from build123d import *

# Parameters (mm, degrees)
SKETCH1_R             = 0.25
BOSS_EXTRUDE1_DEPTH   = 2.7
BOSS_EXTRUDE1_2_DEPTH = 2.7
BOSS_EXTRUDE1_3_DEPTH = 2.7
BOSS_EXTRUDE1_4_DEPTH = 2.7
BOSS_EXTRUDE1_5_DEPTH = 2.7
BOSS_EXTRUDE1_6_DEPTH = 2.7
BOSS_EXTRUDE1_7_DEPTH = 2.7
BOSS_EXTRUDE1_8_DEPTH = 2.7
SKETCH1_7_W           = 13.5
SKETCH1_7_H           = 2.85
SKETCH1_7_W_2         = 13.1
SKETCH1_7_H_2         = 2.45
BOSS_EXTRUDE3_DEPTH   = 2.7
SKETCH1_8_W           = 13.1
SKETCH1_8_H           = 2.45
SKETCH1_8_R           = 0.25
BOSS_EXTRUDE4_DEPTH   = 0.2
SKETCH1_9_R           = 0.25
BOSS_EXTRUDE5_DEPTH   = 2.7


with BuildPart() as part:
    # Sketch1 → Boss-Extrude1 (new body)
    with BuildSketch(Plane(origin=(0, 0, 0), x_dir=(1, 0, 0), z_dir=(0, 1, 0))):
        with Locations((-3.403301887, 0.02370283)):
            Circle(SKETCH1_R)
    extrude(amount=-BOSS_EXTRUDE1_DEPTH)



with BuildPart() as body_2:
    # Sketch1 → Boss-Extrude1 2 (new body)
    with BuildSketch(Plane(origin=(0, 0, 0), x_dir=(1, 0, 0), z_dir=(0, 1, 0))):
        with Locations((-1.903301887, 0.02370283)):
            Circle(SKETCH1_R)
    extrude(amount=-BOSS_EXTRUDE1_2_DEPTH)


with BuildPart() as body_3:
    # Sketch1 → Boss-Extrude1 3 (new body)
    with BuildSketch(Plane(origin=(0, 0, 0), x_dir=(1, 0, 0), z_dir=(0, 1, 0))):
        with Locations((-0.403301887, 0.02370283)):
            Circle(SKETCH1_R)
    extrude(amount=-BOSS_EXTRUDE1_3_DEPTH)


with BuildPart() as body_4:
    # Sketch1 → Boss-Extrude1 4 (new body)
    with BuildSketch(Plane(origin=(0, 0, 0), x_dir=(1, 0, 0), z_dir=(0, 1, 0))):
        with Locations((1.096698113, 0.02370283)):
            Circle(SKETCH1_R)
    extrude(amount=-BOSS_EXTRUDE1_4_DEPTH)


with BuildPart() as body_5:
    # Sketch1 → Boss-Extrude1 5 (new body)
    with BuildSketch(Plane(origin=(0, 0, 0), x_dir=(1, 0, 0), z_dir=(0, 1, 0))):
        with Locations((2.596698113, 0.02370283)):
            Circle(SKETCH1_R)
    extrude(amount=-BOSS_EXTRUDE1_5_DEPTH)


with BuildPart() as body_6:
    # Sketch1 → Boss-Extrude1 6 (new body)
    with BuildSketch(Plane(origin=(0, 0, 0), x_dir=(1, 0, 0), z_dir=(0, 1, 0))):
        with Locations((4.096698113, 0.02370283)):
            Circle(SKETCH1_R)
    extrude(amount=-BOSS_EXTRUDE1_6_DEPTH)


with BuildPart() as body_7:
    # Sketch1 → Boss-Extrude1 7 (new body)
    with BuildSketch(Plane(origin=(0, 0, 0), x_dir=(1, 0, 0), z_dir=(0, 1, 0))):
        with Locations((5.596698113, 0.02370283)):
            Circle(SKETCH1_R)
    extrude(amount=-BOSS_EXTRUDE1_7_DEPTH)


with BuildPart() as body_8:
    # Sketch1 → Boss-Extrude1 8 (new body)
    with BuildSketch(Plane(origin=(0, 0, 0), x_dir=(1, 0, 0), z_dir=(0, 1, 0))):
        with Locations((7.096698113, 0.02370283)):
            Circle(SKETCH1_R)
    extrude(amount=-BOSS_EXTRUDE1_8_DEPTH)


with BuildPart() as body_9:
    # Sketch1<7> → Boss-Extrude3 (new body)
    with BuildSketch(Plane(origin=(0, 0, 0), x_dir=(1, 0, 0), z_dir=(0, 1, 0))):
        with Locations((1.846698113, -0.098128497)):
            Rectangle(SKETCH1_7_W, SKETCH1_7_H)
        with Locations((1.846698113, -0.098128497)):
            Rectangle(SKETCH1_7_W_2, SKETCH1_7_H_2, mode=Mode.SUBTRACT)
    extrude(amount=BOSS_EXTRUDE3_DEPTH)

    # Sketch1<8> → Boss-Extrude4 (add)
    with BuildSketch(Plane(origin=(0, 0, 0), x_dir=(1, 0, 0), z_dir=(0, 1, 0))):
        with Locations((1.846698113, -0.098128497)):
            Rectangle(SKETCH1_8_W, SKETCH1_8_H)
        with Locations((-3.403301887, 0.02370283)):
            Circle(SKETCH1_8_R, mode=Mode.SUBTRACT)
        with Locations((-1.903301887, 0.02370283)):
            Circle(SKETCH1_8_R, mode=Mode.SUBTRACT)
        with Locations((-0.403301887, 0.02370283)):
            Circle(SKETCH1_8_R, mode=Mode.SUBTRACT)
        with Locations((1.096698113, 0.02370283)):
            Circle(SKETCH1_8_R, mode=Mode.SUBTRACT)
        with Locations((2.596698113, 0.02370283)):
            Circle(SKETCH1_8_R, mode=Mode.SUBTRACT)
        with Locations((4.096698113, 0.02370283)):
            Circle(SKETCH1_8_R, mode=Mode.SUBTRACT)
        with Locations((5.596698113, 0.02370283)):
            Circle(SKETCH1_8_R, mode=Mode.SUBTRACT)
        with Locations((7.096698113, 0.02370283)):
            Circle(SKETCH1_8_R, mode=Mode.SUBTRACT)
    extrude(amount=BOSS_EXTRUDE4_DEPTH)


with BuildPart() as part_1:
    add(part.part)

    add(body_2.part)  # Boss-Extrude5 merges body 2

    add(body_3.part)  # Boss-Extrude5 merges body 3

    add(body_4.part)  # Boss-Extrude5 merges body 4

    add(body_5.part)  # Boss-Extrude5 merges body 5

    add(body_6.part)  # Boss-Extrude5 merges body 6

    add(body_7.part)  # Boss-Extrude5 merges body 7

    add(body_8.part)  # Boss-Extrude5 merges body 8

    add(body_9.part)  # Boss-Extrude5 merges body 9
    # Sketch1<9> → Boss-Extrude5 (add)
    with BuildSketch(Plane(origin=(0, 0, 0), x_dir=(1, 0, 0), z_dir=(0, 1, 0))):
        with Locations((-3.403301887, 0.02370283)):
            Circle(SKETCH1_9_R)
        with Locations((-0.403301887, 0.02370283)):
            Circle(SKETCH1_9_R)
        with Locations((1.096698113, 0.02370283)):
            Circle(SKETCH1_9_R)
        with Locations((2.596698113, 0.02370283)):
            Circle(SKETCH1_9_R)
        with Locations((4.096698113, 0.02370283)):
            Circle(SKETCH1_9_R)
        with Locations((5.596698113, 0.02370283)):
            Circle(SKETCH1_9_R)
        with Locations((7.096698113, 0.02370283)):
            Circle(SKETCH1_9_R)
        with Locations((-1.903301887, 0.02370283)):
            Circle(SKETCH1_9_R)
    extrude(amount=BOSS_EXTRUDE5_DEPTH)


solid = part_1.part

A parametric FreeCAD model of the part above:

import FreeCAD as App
import Part
import Sketcher

V = App.Vector
Q = App.Units.Quantity


def add_polygon(sketch, points):
    """Adds a closed chain of lines whose ends are joined by coincident constraints."""
    first, n = sketch.GeometryCount, len(points)
    for a, b in zip(points, points[1:] + points[:1]):
        sketch.addGeometry(Part.LineSegment(App.Vector(*a, 0), App.Vector(*b, 0)), False)
    for i in range(n):
        sketch.addConstraint(Sketcher.Constraint("Coincident", first + i, 2, first + (i + 1) % n, 1))

doc = App.newDocument("Part")
body = doc.addObject("PartDesign::Body", "Body")

# Sketch on XZ plane
sketch1 = body.newObject("Sketcher::SketchObject", "Sketch")
sketch1.AttachmentSupport = (doc.getObject("XZ_Plane"), [""])
sketch1.MapMode = "FlatFace"
sketch1.addGeometry(Part.Circle(V(-3.403302, -0.023703, 0), V(0, 0, 1), 0.25), False)
sketch1.addConstraint([
    Sketcher.Constraint("Diameter", 0, Q("0.5 mm")),
    Sketcher.Constraint("DistanceX", 0, 3, -1, 1, Q("3.403302 mm")),
    Sketcher.Constraint("DistanceY", 0, 3, -1, 1, Q("0.023703 mm")),
])
pad1 = body.newObject("PartDesign::Pad", "Pad")
pad1.Profile = sketch1
pad1.Length = 2.7
body2 = doc.addObject("PartDesign::Body", "Body001")

# Sketch on XZ plane
sketch2 = body2.newObject("Sketcher::SketchObject", "Sketch001")
sketch2.AttachmentSupport = (doc.getObject("XZ_Plane001"), [""])
sketch2.MapMode = "FlatFace"
sketch2.addGeometry(Part.Circle(V(-1.903302, -0.023703, 0), V(0, 0, 1), 0.25), False)
sketch2.addConstraint([
    Sketcher.Constraint("Diameter", 0, Q("0.5 mm")),
    Sketcher.Constraint("DistanceX", 0, 3, -1, 1, Q("1.903302 mm")),
    Sketcher.Constraint("DistanceY", 0, 3, -1, 1, Q("0.023703 mm")),
])
pad2 = body2.newObject("PartDesign::Pad", "Pad001")
pad2.Profile = sketch2
pad2.Length = 2.7
body3 = doc.addObject("PartDesign::Body", "Body002")

# Sketch on XZ plane
sketch3 = body3.newObject("Sketcher::SketchObject", "Sketch002")
sketch3.AttachmentSupport = (doc.getObject("XZ_Plane002"), [""])
sketch3.MapMode = "FlatFace"
sketch3.addGeometry(Part.Circle(V(-0.403302, -0.023703, 0), V(0, 0, 1), 0.25), False)
sketch3.addConstraint([
    Sketcher.Constraint("Diameter", 0, Q("0.5 mm")),
    Sketcher.Constraint("DistanceX", 0, 3, -1, 1, Q("0.403302 mm")),
    Sketcher.Constraint("DistanceY", 0, 3, -1, 1, Q("0.023703 mm")),
])
pad3 = body3.newObject("PartDesign::Pad", "Pad002")
pad3.Profile = sketch3
pad3.Length = 2.7
body4 = doc.addObject("PartDesign::Body", "Body003")

# Sketch on XZ plane
sketch4 = body4.newObject("Sketcher::SketchObject", "Sketch003")
sketch4.AttachmentSupport = (doc.getObject("XZ_Plane003"), [""])
sketch4.MapMode = "FlatFace"
sketch4.addGeometry(Part.Circle(V(1.096698, -0.023703, 0), V(0, 0, 1), 0.25), False)
sketch4.addConstraint([
    Sketcher.Constraint("Diameter", 0, Q("0.5 mm")),
    Sketcher.Constraint("DistanceX", -1, 1, 0, 3, Q("1.096698 mm")),
    Sketcher.Constraint("DistanceY", 0, 3, -1, 1, Q("0.023703 mm")),
])
pad4 = body4.newObject("PartDesign::Pad", "Pad003")
pad4.Profile = sketch4
pad4.Length = 2.7
body5 = doc.addObject("PartDesign::Body", "Body004")

# Sketch on XZ plane
sketch5 = body5.newObject("Sketcher::SketchObject", "Sketch004")
sketch5.AttachmentSupport = (doc.getObject("XZ_Plane004"), [""])
sketch5.MapMode = "FlatFace"
sketch5.addGeometry(Part.Circle(V(2.596698, -0.023703, 0), V(0, 0, 1), 0.25), False)
sketch5.addConstraint([
    Sketcher.Constraint("Diameter", 0, Q("0.5 mm")),
    Sketcher.Constraint("DistanceX", -1, 1, 0, 3, Q("2.596698 mm")),
    Sketcher.Constraint("DistanceY", 0, 3, -1, 1, Q("0.023703 mm")),
])
pad5 = body5.newObject("PartDesign::Pad", "Pad004")
pad5.Profile = sketch5
pad5.Length = 2.7
body6 = doc.addObject("PartDesign::Body", "Body005")

# Sketch on XZ plane
sketch6 = body6.newObject("Sketcher::SketchObject", "Sketch005")
sketch6.AttachmentSupport = (doc.getObject("XZ_Plane005"), [""])
sketch6.MapMode = "FlatFace"
sketch6.addGeometry(Part.Circle(V(4.096698, -0.023703, 0), V(0, 0, 1), 0.25), False)
sketch6.addConstraint([
    Sketcher.Constraint("Diameter", 0, Q("0.5 mm")),
    Sketcher.Constraint("DistanceX", -1, 1, 0, 3, Q("4.096698 mm")),
    Sketcher.Constraint("DistanceY", 0, 3, -1, 1, Q("0.023703 mm")),
])
pad6 = body6.newObject("PartDesign::Pad", "Pad005")
pad6.Profile = sketch6
pad6.Length = 2.7
body7 = doc.addObject("PartDesign::Body", "Body006")

# Sketch on XZ plane
sketch7 = body7.newObject("Sketcher::SketchObject", "Sketch006")
sketch7.AttachmentSupport = (doc.getObject("XZ_Plane006"), [""])
sketch7.MapMode = "FlatFace"
sketch7.addGeometry(Part.Circle(V(5.596698, -0.023703, 0), V(0, 0, 1), 0.25), False)
sketch7.addConstraint([
    Sketcher.Constraint("Diameter", 0, Q("0.5 mm")),
    Sketcher.Constraint("DistanceX", -1, 1, 0, 3, Q("5.596698 mm")),
    Sketcher.Constraint("DistanceY", 0, 3, -1, 1, Q("0.023703 mm")),
])
pad7 = body7.newObject("PartDesign::Pad", "Pad006")
pad7.Profile = sketch7
pad7.Length = 2.7
body8 = doc.addObject("PartDesign::Body", "Body007")

# Sketch on XZ plane
sketch8 = body8.newObject("Sketcher::SketchObject", "Sketch007")
sketch8.AttachmentSupport = (doc.getObject("XZ_Plane007"), [""])
sketch8.MapMode = "FlatFace"
sketch8.addGeometry(Part.Circle(V(7.096698, -0.023703, 0), V(0, 0, 1), 0.25), False)
sketch8.addConstraint([
    Sketcher.Constraint("Diameter", 0, Q("0.5 mm")),
    Sketcher.Constraint("DistanceX", -1, 1, 0, 3, Q("7.096698 mm")),
    Sketcher.Constraint("DistanceY", 0, 3, -1, 1, Q("0.023703 mm")),
])
pad8 = body8.newObject("PartDesign::Pad", "Pad007")
pad8.Profile = sketch8
pad8.Length = 2.7
body9 = doc.addObject("PartDesign::Body", "Body008")

# Sketch on XZ plane
sketch9 = body9.newObject("Sketcher::SketchObject", "Sketch008")
sketch9.AttachmentSupport = (doc.getObject("XZ_Plane008"), [""])
sketch9.MapMode = "FlatFace"
add_polygon(sketch9, [(-4.903302, -1.326872), (-4.903302, 1.523128), (8.596698, 1.523128), (8.596698, -1.326872)])  # lines 0-3
add_polygon(sketch9, [(8.396698, 1.323128), (-4.703302, 1.323128), (-4.703302, -1.126872), (8.396698, -1.126872)])  # lines 4-7
sketch9.addConstraint([
    Sketcher.Constraint("Vertical", 0),
    Sketcher.Constraint("Horizontal", 1),
    Sketcher.Constraint("Vertical", 2),
    Sketcher.Constraint("Horizontal", 3),
    Sketcher.Constraint("Horizontal", 4),
    Sketcher.Constraint("Vertical", 5),
    Sketcher.Constraint("Horizontal", 6),
    Sketcher.Constraint("Vertical", 7),
    Sketcher.Constraint("DistanceX", 1, 1, 1, 2, Q("13.5 mm")),
    Sketcher.Constraint("DistanceX", 4, 2, 4, 1, Q("13.1 mm")),
    Sketcher.Constraint("DistanceY", 0, 1, 0, 2, Q("2.85 mm")),
    Sketcher.Constraint("DistanceY", 5, 2, 5, 1, Q("2.45 mm")),
    Sketcher.Constraint("DistanceX", 0, 2, 4, 2, Q("0.2 mm")),
    Sketcher.Constraint("DistanceY", 4, 2, 0, 2, Q("0.2 mm")),
    Sketcher.Constraint("DistanceX", 0, 2, -1, 1, Q("4.903302 mm")),
    Sketcher.Constraint("DistanceY", -1, 1, 0, 2, Q("1.523128 mm")),
])
pad9 = body9.newObject("PartDesign::Pad", "Pad008")
pad9.Profile = sketch9
pad9.Length = 2.7
pad9.Reversed = True

# Sketch on XZ plane
sketch10 = body9.newObject("Sketcher::SketchObject", "Sketch009")
sketch10.AttachmentSupport = (doc.getObject("XZ_Plane008"), [""])
sketch10.MapMode = "FlatFace"
add_polygon(sketch10, [(-4.703302, -1.126872), (-4.703302, 1.323128), (8.396698, 1.323128), (8.396698, -1.126872)])  # lines 0-3
sketch10.addGeometry(Part.Circle(V(-3.403302, -0.023703, 0), V(0, 0, 1), 0.25), False)  # 4
sketch10.addGeometry(Part.Circle(V(-1.903302, -0.023703, 0), V(0, 0, 1), 0.25), False)  # 5
sketch10.addGeometry(Part.Circle(V(-0.403302, -0.023703, 0), V(0, 0, 1), 0.25), False)  # 6
sketch10.addGeometry(Part.Circle(V(1.096698, -0.023703, 0), V(0, 0, 1), 0.25), False)  # 7
sketch10.addGeometry(Part.Circle(V(2.596698, -0.023703, 0), V(0, 0, 1), 0.25), False)  # 8
sketch10.addGeometry(Part.Circle(V(4.096698, -0.023703, 0), V(0, 0, 1), 0.25), False)  # 9
sketch10.addGeometry(Part.Circle(V(5.596698, -0.023703, 0), V(0, 0, 1), 0.25), False)  # 10
sketch10.addGeometry(Part.Circle(V(7.096698, -0.023703, 0), V(0, 0, 1), 0.25), False)  # 11
sketch10.addConstraint([
    Sketcher.Constraint("Vertical", 0),
    Sketcher.Constraint("Horizontal", 1),
    Sketcher.Constraint("Vertical", 2),
    Sketcher.Constraint("Horizontal", 3),
    Sketcher.Constraint("Equal", 4, 5),
    Sketcher.Constraint("Equal", 5, 6),
    Sketcher.Constraint("Equal", 6, 7),
    Sketcher.Constraint("Equal", 7, 8),
    Sketcher.Constraint("Equal", 8, 9),
    Sketcher.Constraint("Equal", 9, 10),
    Sketcher.Constraint("Equal", 10, 11),
    Sketcher.Constraint("Horizontal", 4, 3, 5, 3),
    Sketcher.Constraint("Horizontal", 5, 3, 6, 3),
    Sketcher.Constraint("Horizontal", 6, 3, 7, 3),
    Sketcher.Constraint("Horizontal", 7, 3, 8, 3),
    Sketcher.Constraint("Horizontal", 8, 3, 9, 3),
    Sketcher.Constraint("Horizontal", 9, 3, 10, 3),
    Sketcher.Constraint("Horizontal", 10, 3, 11, 3),
    Sketcher.Constraint("Diameter", 4, Q("0.5 mm")),
    Sketcher.Constraint("DistanceX", 1, 1, 1, 2, Q("13.1 mm")),
    Sketcher.Constraint("DistanceX", 4, 3, 6, 3, Q("3 mm")),
    Sketcher.Constraint("DistanceX", 5, 3, 7, 3, Q("3 mm")),
    Sketcher.Constraint("DistanceX", 6, 3, 8, 3, Q("3 mm")),
    Sketcher.Constraint("DistanceX", 7, 3, 9, 3, Q("3 mm")),
    Sketcher.Constraint("DistanceX", 8, 3, 10, 3, Q("3 mm")),
    Sketcher.Constraint("DistanceX", 9, 3, 11, 3, Q("3 mm")),
    Sketcher.Constraint("DistanceY", 0, 1, 0, 2, Q("2.45 mm")),
    Sketcher.Constraint("DistanceX", 4, 3, 5, 3, Q("1.5 mm")),
    Sketcher.Constraint("DistanceX", 0, 2, 4, 3, Q("1.3 mm")),
    Sketcher.Constraint("DistanceX", 4, 3, -1, 1, Q("3.403302 mm")),
    Sketcher.Constraint("DistanceY", -1, 1, 0, 2, Q("1.323128 mm")),
    Sketcher.Constraint("DistanceY", 4, 3, 0, 2, Q("1.346831 mm")),
])
pad10 = body9.newObject("PartDesign::Pad", "Pad009")
pad10.Profile = sketch10
pad10.Length = 0.2
pad10.Reversed = True
body.AllowCompound = True
doc.recompute()

boolean = body.newObject("PartDesign::Boolean", "Boolean")
boolean.Type = "Fuse"
boolean.addObjects([body2])
doc.recompute()

boolean2 = body.newObject("PartDesign::Boolean", "Boolean001")
boolean2.Type = "Fuse"
boolean2.addObjects([body3])
doc.recompute()

boolean3 = body.newObject("PartDesign::Boolean", "Boolean002")
boolean3.Type = "Fuse"
boolean3.addObjects([body4])
doc.recompute()

boolean4 = body.newObject("PartDesign::Boolean", "Boolean003")
boolean4.Type = "Fuse"
boolean4.addObjects([body5])
doc.recompute()

boolean5 = body.newObject("PartDesign::Boolean", "Boolean004")
boolean5.Type = "Fuse"
boolean5.addObjects([body6])
doc.recompute()

boolean6 = body.newObject("PartDesign::Boolean", "Boolean005")
boolean6.Type = "Fuse"
boolean6.addObjects([body7])
doc.recompute()

boolean7 = body.newObject("PartDesign::Boolean", "Boolean006")
boolean7.Type = "Fuse"
boolean7.addObjects([body8])
doc.recompute()

boolean8 = body.newObject("PartDesign::Boolean", "Boolean007")
boolean8.Type = "Fuse"
boolean8.addObjects([body9])

# Sketch on XZ plane
sketch11 = body.newObject("Sketcher::SketchObject", "Sketch010")
sketch11.AttachmentSupport = (doc.getObject("XZ_Plane"), [""])
sketch11.MapMode = "FlatFace"
sketch11.addGeometry([
    Part.Circle(V(-3.403302, -0.023703, 0), V(0, 0, 1), 0.25),  # 0
    Part.Circle(V(-0.403302, -0.023703, 0), V(0, 0, 1), 0.25),  # 1
    Part.Circle(V(1.096698, -0.023703, 0), V(0, 0, 1), 0.25),  # 2
    Part.Circle(V(2.596698, -0.023703, 0), V(0, 0, 1), 0.25),  # 3
    Part.Circle(V(4.096698, -0.023703, 0), V(0, 0, 1), 0.25),  # 4
    Part.Circle(V(5.596698, -0.023703, 0), V(0, 0, 1), 0.25),  # 5
    Part.Circle(V(7.096698, -0.023703, 0), V(0, 0, 1), 0.25),  # 6
    Part.Circle(V(-1.903302, -0.023703, 0), V(0, 0, 1), 0.25),  # 7
], False)
sketch11.addConstraint([
    Sketcher.Constraint("Equal", 0, 1),
    Sketcher.Constraint("Equal", 1, 2),
    Sketcher.Constraint("Equal", 2, 3),
    Sketcher.Constraint("Equal", 3, 4),
    Sketcher.Constraint("Equal", 4, 5),
    Sketcher.Constraint("Equal", 5, 6),
    Sketcher.Constraint("Equal", 6, 7),
    Sketcher.Constraint("Horizontal", 0, 3, 1, 3),
    Sketcher.Constraint("Horizontal", 1, 3, 2, 3),
    Sketcher.Constraint("Horizontal", 2, 3, 3, 3),
    Sketcher.Constraint("Horizontal", 3, 3, 4, 3),
    Sketcher.Constraint("Horizontal", 4, 3, 5, 3),
    Sketcher.Constraint("Horizontal", 5, 3, 6, 3),
    Sketcher.Constraint("Horizontal", 6, 3, 7, 3),
    Sketcher.Constraint("Diameter", 0, Q("0.5 mm")),
    Sketcher.Constraint("DistanceX", 0, 3, 1, 3, Q("3 mm")),
    Sketcher.Constraint("DistanceX", 1, 3, 3, 3, Q("3 mm")),
    Sketcher.Constraint("DistanceX", 2, 3, 4, 3, Q("3 mm")),
    Sketcher.Constraint("DistanceX", 3, 3, 5, 3, Q("3 mm")),
    Sketcher.Constraint("DistanceX", 4, 3, 6, 3, Q("3 mm")),
    Sketcher.Constraint("DistanceX", 7, 3, 2, 3, Q("3 mm")),
    Sketcher.Constraint("DistanceX", 1, 3, 2, 3, Q("1.5 mm")),
    Sketcher.Constraint("DistanceX", 0, 3, -1, 1, Q("3.403302 mm")),
    Sketcher.Constraint("DistanceY", 0, 3, -1, 1, Q("0.023703 mm")),
])
pad11 = body.newObject("PartDesign::Pad", "Pad010")
pad11.Profile = sketch11
pad11.Length = 2.7
pad11.Reversed = True

doc.recompute()
